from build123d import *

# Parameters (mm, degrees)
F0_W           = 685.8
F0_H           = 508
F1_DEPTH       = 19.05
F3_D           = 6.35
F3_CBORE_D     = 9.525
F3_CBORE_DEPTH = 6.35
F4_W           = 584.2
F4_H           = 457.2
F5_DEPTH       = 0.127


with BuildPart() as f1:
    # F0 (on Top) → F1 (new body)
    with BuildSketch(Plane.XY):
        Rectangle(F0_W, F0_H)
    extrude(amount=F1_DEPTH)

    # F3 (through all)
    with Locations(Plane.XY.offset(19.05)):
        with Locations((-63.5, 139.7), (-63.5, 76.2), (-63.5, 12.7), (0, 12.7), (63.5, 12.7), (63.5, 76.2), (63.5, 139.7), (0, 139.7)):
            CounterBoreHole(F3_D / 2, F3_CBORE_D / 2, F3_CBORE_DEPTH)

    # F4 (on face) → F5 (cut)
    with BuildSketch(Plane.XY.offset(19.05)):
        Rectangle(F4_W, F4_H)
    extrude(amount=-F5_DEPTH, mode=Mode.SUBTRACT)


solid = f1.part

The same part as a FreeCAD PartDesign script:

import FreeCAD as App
import Part
import Sketcher
Q = App.Units.Quantity


def add_polygon(sketch, points):
    """Adds a closed chain of lines whose ends are joined by coincident constraints."""
    first, n = sketch.GeometryCount, len(points)
    for a, b in zip(points, points[1:] + points[:1]):
        sketch.addGeometry(Part.LineSegment(App.Vector(*a, 0), App.Vector(*b, 0)), False)
    for i in range(n):
        sketch.addConstraint(Sketcher.Constraint("Coincident", first + i, 2, first + (i + 1) % n, 1))

doc = App.newDocument("Part")
body = doc.addObject("PartDesign::Body", "Body")

# Sketch on XY plane
sketch1 = body.newObject("Sketcher::SketchObject", "Sketch")
sketch1.AttachmentSupport = (doc.getObject("XY_Plane"), [""])
sketch1.MapMode = "FlatFace"
add_polygon(sketch1, [(-343, 254), (-343, -254), (343, -254), (343, 254)])  # lines 0-3
sketch1.addConstraint(Sketcher.Constraint("Vertical", 0))
sketch1.addConstraint(Sketcher.Constraint("Horizontal", 1))
sketch1.addConstraint(Sketcher.Constraint("Vertical", 2))
sketch1.addConstraint(Sketcher.Constraint("Horizontal", 3))
sketch1.addConstraint(Sketcher.Constraint("Symmetric", 0, 2, 2, 2, -1, 1))
sketch1.addConstraint(Sketcher.Constraint("DistanceX", 1, 1, 1, 2, Q("27 in")))
sketch1.addConstraint(Sketcher.Constraint("DistanceY", 0, 2, 0, 1, Q("20 in")))
pad1 = body.newObject("PartDesign::Pad", "Pad")
pad1.Profile = sketch1
pad1.Length = Q("0.75 in")

# Sketch on XY plane
sketch2 = body.newObject("Sketcher::SketchObject", "Sketch001")
sketch2.AttachmentSupport = (doc.getObject("XY_Plane"), [""])
sketch2.MapMode = "FlatFace"
sketch2.AttachmentOffset = App.Placement(App.Vector(0, 0, 0.75 * 25.4), App.Rotation())
sketch2.addGeometry(Part.Circle(App.Vector(-63.5, 139.7, 0), App.Vector(0, 0, 1), 3.2), False)
sketch2.addGeometry(Part.Circle(App.Vector(-63.5, 76.2, 0), App.Vector(0, 0, 1), 3.2), False)
sketch2.addGeometry(Part.Circle(App.Vector(-63.5, 12.7, 0), App.Vector(0, 0, 1), 3.2), False)
sketch2.addGeometry(Part.Circle(App.Vector(0, 12.7, 0), App.Vector(0, 0, 1), 3.2), False)
sketch2.addGeometry(Part.Circle(App.Vector(63.5, 12.7, 0), App.Vector(0, 0, 1), 3.2), False)
sketch2.addGeometry(Part.Circle(App.Vector(63.5, 76.2, 0), App.Vector(0, 0, 1), 3.2), False)
sketch2.addGeometry(Part.Circle(App.Vector(63.5, 139.7, 0), App.Vector(0, 0, 1), 3.2), False)
sketch2.addGeometry(Part.Circle(App.Vector(0, 139.7, 0), App.Vector(0, 0, 1), 3.2), False)
sketch2.addConstraint(Sketcher.Constraint("Equal", 0, 1))
sketch2.addConstraint(Sketcher.Constraint("Equal", 1, 2))
sketch2.addConstraint(Sketcher.Constraint("Equal", 2, 3))
sketch2.addConstraint(Sketcher.Constraint("Equal", 3, 4))
sketch2.addConstraint(Sketcher.Constraint("Equal", 4, 5))
sketch2.addConstraint(Sketcher.Constraint("Equal", 5, 6))
sketch2.addConstraint(Sketcher.Constraint("Equal", 6, 7))
sketch2.addConstraint(Sketcher.Constraint("Symmetric", 2, 3, 4, 3, -2))
sketch2.addConstraint(Sketcher.Constraint("Symmetric", 1, 3, 5, 3, -2))
sketch2.addConstraint(Sketcher.Constraint("Symmetric", 0, 3, 6, 3, -2))
sketch2.addConstraint(Sketcher.Constraint("PointOnObject", 3, 3, -2))
sketch2.addConstraint(Sketcher.Constraint("PointOnObject", 7, 3, -2))
sketch2.addConstraint(Sketcher.Constraint("Horizontal", 2, 3, 3, 3))
sketch2.addConstraint(Sketcher.Constraint("Horizontal", 6, 3, 7, 3))
sketch2.addConstraint(Sketcher.Constraint("Vertical", 0, 3, 1, 3))
sketch2.addConstraint(Sketcher.Constraint("Vertical", 1, 3, 2, 3))
sketch2.addConstraint(Sketcher.Constraint("Diameter", 0, Q("0.25 in")))
sketch2.addConstraint(Sketcher.Constraint("DistanceY", -1, 1, 1, 3, Q("3 in")))
sketch2.addConstraint(Sketcher.Constraint("DistanceY", 2, 3, 0, 3, Q("5 in")))
sketch2.addConstraint(Sketcher.Constraint("DistanceX", 2, 3, 4, 3, Q("5 in")))
sketch2.addConstraint(Sketcher.Constraint("DistanceY", -1, 1, 0, 3, Q("5.5 in")))
doc.recompute()
hole = body.newObject("PartDesign::Hole", "Hole")
hole.Profile = sketch2
hole.ThreadType = "None"
hole.Diameter = Q("0.25 in")
hole.DepthType = "ThroughAll"
hole.HoleCutType = "Counterbore"
hole.HoleCutDiameter = Q("0.375 in")
hole.HoleCutDepth = Q("0.25 in")

# Sketch on XY plane
sketch3 = body.newObject("Sketcher::SketchObject", "Sketch002")
sketch3.AttachmentSupport = (doc.getObject("XY_Plane"), [""])
sketch3.MapMode = "FlatFace"
sketch3.AttachmentOffset = App.Placement(App.Vector(0, 0, 0.75 * 25.4), App.Rotation())
add_polygon(sketch3, [(-292, 229), (-292, -229), (292, -229), (292, 229)])  # lines 0-3
sketch3.addConstraint(Sketcher.Constraint("Vertical", 0))
sketch3.addConstraint(Sketcher.Constraint("Horizontal", 1))
sketch3.addConstraint(Sketcher.Constraint("Vertical", 2))
sketch3.addConstraint(Sketcher.Constraint("Horizontal", 3))
sketch3.addConstraint(Sketcher.Constraint("Symmetric", 0, 2, 2, 2, -1, 1))
sketch3.addConstraint(Sketcher.Constraint("DistanceX", 1, 1, 1, 2, Q("23 in")))
sketch3.addConstraint(Sketcher.Constraint("DistanceY", 0, 2, 0, 1, Q("18 in")))
pocket1 = body.newObject("PartDesign::Pocket", "Pocket")
pocket1.Profile = sketch3
pocket1.Length = Q("0.005 in")

doc.recompute()
